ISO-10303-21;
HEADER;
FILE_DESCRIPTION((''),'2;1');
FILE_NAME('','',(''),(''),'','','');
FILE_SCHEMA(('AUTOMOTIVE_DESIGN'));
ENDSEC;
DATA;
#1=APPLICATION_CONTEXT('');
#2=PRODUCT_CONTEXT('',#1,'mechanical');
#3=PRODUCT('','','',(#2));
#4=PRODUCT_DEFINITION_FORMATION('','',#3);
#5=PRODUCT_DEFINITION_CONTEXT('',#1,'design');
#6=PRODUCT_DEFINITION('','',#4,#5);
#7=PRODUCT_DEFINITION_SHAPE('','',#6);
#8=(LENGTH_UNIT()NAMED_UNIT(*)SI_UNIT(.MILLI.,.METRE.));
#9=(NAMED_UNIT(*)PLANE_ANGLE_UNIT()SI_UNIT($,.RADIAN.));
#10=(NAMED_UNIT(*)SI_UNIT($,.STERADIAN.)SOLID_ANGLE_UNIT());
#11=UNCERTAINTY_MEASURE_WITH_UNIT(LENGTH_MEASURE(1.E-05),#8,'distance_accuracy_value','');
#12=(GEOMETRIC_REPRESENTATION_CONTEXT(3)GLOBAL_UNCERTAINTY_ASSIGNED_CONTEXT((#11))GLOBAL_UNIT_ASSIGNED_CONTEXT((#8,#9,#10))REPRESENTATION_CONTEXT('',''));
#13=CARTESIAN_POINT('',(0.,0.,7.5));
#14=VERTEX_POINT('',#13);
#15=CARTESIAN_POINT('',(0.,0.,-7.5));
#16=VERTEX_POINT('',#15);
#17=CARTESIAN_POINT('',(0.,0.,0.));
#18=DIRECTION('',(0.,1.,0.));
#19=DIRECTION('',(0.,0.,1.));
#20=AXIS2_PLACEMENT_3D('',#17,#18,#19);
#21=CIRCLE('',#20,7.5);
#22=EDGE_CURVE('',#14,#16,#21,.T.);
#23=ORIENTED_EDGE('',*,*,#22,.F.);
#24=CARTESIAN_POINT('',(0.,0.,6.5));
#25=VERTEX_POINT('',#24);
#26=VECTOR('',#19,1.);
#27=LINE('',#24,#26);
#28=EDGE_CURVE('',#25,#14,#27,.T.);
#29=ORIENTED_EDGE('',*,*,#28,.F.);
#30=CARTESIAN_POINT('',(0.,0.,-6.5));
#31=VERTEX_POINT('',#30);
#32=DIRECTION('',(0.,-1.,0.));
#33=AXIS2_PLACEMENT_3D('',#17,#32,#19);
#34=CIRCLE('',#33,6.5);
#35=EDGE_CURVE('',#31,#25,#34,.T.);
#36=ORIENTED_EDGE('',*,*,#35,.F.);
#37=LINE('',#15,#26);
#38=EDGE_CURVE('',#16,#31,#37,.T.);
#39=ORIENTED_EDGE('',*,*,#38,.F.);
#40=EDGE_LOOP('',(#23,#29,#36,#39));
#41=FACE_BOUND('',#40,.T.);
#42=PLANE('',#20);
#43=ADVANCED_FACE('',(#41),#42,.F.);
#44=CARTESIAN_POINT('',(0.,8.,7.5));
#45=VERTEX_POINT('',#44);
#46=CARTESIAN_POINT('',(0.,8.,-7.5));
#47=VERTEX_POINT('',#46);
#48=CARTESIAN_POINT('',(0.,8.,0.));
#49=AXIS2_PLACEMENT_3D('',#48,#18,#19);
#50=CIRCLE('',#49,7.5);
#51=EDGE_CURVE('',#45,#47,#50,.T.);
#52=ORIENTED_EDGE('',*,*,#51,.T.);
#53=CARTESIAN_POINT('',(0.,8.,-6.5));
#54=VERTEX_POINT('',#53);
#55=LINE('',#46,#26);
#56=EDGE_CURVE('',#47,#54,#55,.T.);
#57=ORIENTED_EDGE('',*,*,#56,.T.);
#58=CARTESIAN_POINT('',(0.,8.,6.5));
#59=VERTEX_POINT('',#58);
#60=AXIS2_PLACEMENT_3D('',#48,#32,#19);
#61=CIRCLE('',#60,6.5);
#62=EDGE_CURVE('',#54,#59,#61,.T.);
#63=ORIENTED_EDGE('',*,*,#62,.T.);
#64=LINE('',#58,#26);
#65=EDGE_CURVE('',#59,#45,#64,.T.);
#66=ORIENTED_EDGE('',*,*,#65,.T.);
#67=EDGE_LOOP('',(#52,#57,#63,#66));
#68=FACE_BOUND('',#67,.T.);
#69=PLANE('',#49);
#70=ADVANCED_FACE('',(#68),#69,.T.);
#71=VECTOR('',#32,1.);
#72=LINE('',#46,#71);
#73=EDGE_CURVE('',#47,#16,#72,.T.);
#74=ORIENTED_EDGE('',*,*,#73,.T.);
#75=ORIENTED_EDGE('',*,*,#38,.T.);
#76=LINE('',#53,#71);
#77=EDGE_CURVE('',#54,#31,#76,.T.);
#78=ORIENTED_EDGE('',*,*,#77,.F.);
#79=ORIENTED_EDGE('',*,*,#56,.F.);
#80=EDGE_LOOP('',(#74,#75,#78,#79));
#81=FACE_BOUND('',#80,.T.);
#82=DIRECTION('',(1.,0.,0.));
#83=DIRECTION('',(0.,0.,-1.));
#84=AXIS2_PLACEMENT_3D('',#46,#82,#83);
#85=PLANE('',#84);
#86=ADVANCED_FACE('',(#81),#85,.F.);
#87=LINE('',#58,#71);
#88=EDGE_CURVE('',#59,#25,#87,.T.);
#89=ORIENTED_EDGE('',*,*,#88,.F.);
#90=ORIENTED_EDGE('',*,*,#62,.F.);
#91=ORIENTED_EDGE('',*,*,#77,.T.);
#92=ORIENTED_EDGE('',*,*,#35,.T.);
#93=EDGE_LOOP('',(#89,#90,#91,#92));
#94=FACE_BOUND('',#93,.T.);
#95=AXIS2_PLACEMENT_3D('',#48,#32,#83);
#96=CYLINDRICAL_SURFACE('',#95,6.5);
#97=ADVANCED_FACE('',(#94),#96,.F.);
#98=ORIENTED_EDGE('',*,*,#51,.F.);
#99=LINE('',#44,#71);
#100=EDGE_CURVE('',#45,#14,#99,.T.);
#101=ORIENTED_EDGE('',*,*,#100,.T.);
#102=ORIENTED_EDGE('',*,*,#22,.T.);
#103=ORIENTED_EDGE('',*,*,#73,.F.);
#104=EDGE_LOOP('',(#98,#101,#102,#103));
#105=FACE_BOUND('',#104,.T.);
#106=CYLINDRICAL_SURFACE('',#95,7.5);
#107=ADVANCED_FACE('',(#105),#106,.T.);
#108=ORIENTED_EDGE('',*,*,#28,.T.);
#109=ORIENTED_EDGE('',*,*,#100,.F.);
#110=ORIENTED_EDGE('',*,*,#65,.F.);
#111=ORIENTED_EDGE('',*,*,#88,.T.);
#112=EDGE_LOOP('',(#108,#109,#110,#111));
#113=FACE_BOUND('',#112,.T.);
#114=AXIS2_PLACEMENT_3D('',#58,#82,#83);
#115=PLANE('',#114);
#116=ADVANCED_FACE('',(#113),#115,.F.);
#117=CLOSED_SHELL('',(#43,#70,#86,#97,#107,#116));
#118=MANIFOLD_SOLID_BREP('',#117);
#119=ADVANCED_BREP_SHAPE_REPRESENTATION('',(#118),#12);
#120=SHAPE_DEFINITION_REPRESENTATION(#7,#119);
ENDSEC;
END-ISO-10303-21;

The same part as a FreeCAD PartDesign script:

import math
import FreeCAD as App
import Part
import Sketcher
from FreeCAD import Vector

doc = App.newDocument("Part")
body = doc.addObject("PartDesign::Body", "Body")

# Sketch on XZ plane
sketch1 = body.newObject("Sketcher::SketchObject", "Sketch")
sketch1.AttachmentSupport = (doc.getObject("XZ_Plane"), [""])
sketch1.MapMode = "FlatFace"
sketch1.addGeometry([
    Part.LineSegment(Vector(0, -7.5, 0), Vector(0, -6.5, 0)),
    Part.ArcOfCircle(Part.Circle(Vector(0, 0, 0), Vector(0, 0, 1), 6.5), math.radians(-90), math.radians(90)),
    Part.LineSegment(Vector(0, 6.5, 0), Vector(0, 7.5, 0)),
    Part.ArcOfCircle(Part.Circle(Vector(0, 0, 0), Vector(0, 0, 1), 7.5), math.radians(-90), math.radians(90)),
], False)
sketch1.addConstraint([
    Sketcher.Constraint("Coincident", 0, 2, 1, 1),
    Sketcher.Constraint("Coincident", 1, 2, 2, 1),
    Sketcher.Constraint("Coincident", 2, 2, 3, 2),
    Sketcher.Constraint("Coincident", 3, 1, 0, 1),
    Sketcher.Constraint("Vertical", 0),
    Sketcher.Constraint("Vertical", 2),
    Sketcher.Constraint("Coincident", 1, 3, -1, 1),
    Sketcher.Constraint("Coincident", 3, 3, -1, 1),
    Sketcher.Constraint("PointOnObject", 0, 2, -2),
    Sketcher.Constraint("PointOnObject", 1, 2, -2),
    Sketcher.Constraint("Radius", 1, 6.5),
    Sketcher.Constraint("Radius", 3, 7.5),
])
pad1 = body.newObject("PartDesign::Pad", "Pad")
pad1.Profile = sketch1
pad1.Length = 8
pad1.Reversed = True

doc.recompute()
